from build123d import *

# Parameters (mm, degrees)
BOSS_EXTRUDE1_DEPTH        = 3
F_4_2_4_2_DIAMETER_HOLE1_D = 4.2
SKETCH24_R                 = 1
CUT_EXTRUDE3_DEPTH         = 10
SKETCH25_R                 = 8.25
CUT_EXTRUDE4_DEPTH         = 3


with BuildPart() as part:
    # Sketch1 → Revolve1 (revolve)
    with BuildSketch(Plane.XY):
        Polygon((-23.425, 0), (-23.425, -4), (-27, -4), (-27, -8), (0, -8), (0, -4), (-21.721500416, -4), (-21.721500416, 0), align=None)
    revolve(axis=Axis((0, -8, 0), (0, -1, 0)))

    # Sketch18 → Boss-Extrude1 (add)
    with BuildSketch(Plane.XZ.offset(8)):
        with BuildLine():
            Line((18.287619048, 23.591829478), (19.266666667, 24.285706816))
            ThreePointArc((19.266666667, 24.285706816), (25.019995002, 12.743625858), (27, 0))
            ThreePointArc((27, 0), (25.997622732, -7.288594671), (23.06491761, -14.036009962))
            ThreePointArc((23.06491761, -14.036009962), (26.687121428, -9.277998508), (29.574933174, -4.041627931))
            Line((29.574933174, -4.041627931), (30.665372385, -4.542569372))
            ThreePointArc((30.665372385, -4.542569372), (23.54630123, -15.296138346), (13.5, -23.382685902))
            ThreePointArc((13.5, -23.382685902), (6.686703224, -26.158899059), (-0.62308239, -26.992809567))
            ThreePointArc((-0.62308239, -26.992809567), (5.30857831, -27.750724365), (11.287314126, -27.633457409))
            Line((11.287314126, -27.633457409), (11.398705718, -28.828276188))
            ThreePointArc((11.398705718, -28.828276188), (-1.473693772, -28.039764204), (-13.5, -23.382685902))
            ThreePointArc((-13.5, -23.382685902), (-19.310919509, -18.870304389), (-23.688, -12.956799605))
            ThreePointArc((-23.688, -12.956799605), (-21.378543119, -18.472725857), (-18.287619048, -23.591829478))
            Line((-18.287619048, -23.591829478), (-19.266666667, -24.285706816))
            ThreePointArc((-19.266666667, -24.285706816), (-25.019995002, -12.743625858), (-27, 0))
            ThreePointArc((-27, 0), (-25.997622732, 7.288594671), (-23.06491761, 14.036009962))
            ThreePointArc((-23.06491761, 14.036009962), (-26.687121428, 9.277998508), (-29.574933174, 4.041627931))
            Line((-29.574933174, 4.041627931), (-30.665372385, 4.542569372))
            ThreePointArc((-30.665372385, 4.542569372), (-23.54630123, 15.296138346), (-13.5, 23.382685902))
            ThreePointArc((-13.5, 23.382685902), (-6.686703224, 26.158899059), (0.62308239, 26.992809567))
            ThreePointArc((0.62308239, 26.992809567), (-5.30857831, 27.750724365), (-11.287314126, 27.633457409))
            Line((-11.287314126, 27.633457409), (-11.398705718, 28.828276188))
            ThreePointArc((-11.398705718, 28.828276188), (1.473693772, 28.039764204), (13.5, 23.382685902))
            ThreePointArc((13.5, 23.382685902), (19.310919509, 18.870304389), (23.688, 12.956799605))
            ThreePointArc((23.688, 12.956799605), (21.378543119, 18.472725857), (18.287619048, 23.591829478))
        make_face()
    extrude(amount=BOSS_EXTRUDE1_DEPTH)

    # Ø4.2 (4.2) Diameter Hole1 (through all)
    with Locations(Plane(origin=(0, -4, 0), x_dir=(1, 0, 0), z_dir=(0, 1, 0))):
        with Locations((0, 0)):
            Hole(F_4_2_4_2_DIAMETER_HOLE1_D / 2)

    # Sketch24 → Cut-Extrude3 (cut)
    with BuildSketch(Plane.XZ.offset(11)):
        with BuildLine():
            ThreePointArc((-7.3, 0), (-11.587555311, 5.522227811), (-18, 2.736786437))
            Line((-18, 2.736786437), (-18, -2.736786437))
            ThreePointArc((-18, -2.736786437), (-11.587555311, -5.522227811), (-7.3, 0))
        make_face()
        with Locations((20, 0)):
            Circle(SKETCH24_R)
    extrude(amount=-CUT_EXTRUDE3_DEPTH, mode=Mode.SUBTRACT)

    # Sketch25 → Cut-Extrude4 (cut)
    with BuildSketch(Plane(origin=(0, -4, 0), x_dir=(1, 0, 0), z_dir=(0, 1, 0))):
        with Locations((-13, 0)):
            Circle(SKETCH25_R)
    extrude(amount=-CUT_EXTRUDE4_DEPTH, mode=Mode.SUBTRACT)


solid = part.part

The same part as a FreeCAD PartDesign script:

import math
import FreeCAD as App
import Part
import Sketcher
from FreeCAD import Vector


def add_polygon(sketch, points):
    """Adds a closed chain of lines whose ends are joined by coincident constraints."""
    first, n = sketch.GeometryCount, len(points)
    for a, b in zip(points, points[1:] + points[:1]):
        sketch.addGeometry(Part.LineSegment(App.Vector(*a, 0), App.Vector(*b, 0)), False)
    for i in range(n):
        sketch.addConstraint(Sketcher.Constraint("Coincident", first + i, 2, first + (i + 1) % n, 1))

doc = App.newDocument("Part")
body = doc.addObject("PartDesign::Body", "Body")

# Sketch on XY plane
sketch1 = body.newObject("Sketcher::SketchObject", "Sketch")
sketch1.AttachmentSupport = (doc.getObject("XY_Plane"), [""])
sketch1.MapMode = "FlatFace"
add_polygon(sketch1, [(-23.4, 0), (-23.4, -4), (-27, -4), (-27, -8), (0, -8), (0, -4), (-21.7, -4), (-21.7, 0)])  # lines 0-7
sketch1.addConstraint(Sketcher.Constraint("Vertical", 0))
sketch1.addConstraint(Sketcher.Constraint("Horizontal", 1))
sketch1.addConstraint(Sketcher.Constraint("Vertical", 2))
sketch1.addConstraint(Sketcher.Constraint("Horizontal", 3))
sketch1.addConstraint(Sketcher.Constraint("Vertical", 4))
sketch1.addConstraint(Sketcher.Constraint("Horizontal", 5))
sketch1.addConstraint(Sketcher.Constraint("Vertical", 6))
sketch1.addConstraint(Sketcher.Constraint("Horizontal", 7))
sketch1.addConstraint(Sketcher.Constraint("PointOnObject", 3, 2, -2))
sketch1.addConstraint(Sketcher.Constraint("PointOnObject", 6, 2, -1))
sketch1.addConstraint(Sketcher.Constraint("Horizontal", 1, 2, 4, 2))
sketch1.addConstraint(Sketcher.Constraint("Equal", 0, 2))
sketch1.addConstraint(Sketcher.Constraint("DistanceX", 3, 1, 3, 2, 27.0))
sketch1.addConstraint(Sketcher.Constraint("DistanceY", 0, 2, 0, 1, 4.0))
sketch1.addConstraint(Sketcher.Constraint("DistanceX", 1, 2, 1, 1, 3.575))
sketch1.addConstraint(Sketcher.Constraint("DistanceX", 5, 2, 5, 1, 21.7215))
revolution = body.newObject("PartDesign::Revolution", "Revolution")
revolution.Profile = sketch1
revolution.ReferenceAxis = (sketch1, ["V_Axis"])
revolution.Angle = 360

# Sketch on XZ plane
sketch2 = body.newObject("Sketcher::SketchObject", "Sketch001")
sketch2.AttachmentSupport = (doc.getObject("XZ_Plane"), [""])
sketch2.MapMode = "FlatFace"
sketch2.AttachmentOffset = App.Placement(Vector(0, 0, 8), App.Rotation())
sketch2.addGeometry(Part.LineSegment(Vector(19.3, 24.3, 0), Vector(18.3, 23.6, 0)), False)
sketch2.addGeometry(Part.ArcOfCircle(Part.Circle(Vector(-15, 0, 0), Vector(0, 0, 1), 40.8), math.radians(18.52), math.radians(35.33)), False)
sketch2.addGeometry(Part.ArcOfCircle(Part.Circle(Vector(0, 0, 0), Vector(0, 0, 1), 27), math.radians(29), math.radians(60)), False)
sketch2.addGeometry(Part.ArcOfCircle(Part.Circle(Vector(-7.5, -13, 0), Vector(0, 0, 1), 42), math.radians(60), math.radians(95)), False)
sketch2.addGeometry(Part.LineSegment(Vector(-11.4, 28.8, 0), Vector(-11.3, 27.6, 0)), False)
sketch2.addGeometry(Part.ArcOfCircle(Part.Circle(Vector(-7.5, -13, 0), Vector(0, 0, 1), 40.8), math.radians(78.52), math.radians(95.33)), False)
sketch2.addGeometry(Part.ArcOfCircle(Part.Circle(Vector(0, 0, 0), Vector(0, 0, 1), 27), math.radians(89), math.radians(120)), False)
sketch2.addGeometry(Part.ArcOfCircle(Part.Circle(Vector(7.5, -13, 0), Vector(0, 0, 1), 42), math.radians(120), math.radians(155)), False)
sketch2.addGeometry(Part.LineSegment(Vector(-30.7, 4.5, 0), Vector(-29.6, 4, 0)), False)
sketch2.addGeometry(Part.ArcOfCircle(Part.Circle(Vector(7.5, -13, 0), Vector(0, 0, 1), 40.8), math.radians(138.52), math.radians(155.33)), False)
sketch2.addGeometry(Part.ArcOfCircle(Part.Circle(Vector(0, 0, 0), Vector(0, 0, 1), 27), math.radians(149), math.radians(180)), False)
sketch2.addGeometry(Part.ArcOfCircle(Part.Circle(Vector(15, 0, 0), Vector(0, 0, 1), 42), math.radians(-180), math.radians(-145)), False)
sketch2.addGeometry(Part.LineSegment(Vector(-19.3, -24.3, 0), Vector(-18.3, -23.6, 0)), False)
sketch2.addGeometry(Part.ArcOfCircle(Part.Circle(Vector(15, 0, 0), Vector(0, 0, 1), 40.8), math.radians(-161.48), math.radians(-144.67)), False)
sketch2.addGeometry(Part.ArcOfCircle(Part.Circle(Vector(0, 0, 0), Vector(0, 0, 1), 27), math.radians(-151), math.radians(-120)), False)
sketch2.addGeometry(Part.ArcOfCircle(Part.Circle(Vector(7.5, 13, 0), Vector(0, 0, 1), 42), math.radians(-120), math.radians(-85)), False)
sketch2.addGeometry(Part.LineSegment(Vector(11.4, -28.8, 0), Vector(11.3, -27.6, 0)), False)
sketch2.addGeometry(Part.ArcOfCircle(Part.Circle(Vector(7.5, 13, 0), Vector(0, 0, 1), 40.8), math.radians(-101.48), math.radians(-84.67)), False)
sketch2.addGeometry(Part.ArcOfCircle(Part.Circle(Vector(0, 0, 0), Vector(0, 0, 1), 27), math.radians(-91), math.radians(-60)), False)
sketch2.addGeometry(Part.ArcOfCircle(Part.Circle(Vector(-7.5, 13, 0), Vector(0, 0, 1), 42), math.radians(-60), math.radians(-25)), False)
sketch2.addGeometry(Part.LineSegment(Vector(30.7, -4.5, 0), Vector(29.6, -4, 0)), False)
sketch2.addGeometry(Part.ArcOfCircle(Part.Circle(Vector(-7.5, 13, 0), Vector(0, 0, 1), 40.8), math.radians(-41.48), math.radians(-24.67)), False)
sketch2.addGeometry(Part.ArcOfCircle(Part.Circle(Vector(0, 0, 0), Vector(0, 0, 1), 27), math.radians(-31), math.radians(0)), False)
sketch2.addGeometry(Part.ArcOfCircle(Part.Circle(Vector(-15, 0, 0), Vector(0, 0, 1), 42), math.radians(0), math.radians(35)), False)
sketch2.addConstraint(Sketcher.Constraint("Coincident", 0, 2, 1, 2))
sketch2.addConstraint(Sketcher.Constraint("Coincident", 1, 1, 2, 1))
sketch2.addConstraint(Sketcher.Constraint("Tangent", 2, 2, 3, 1))
sketch2.addConstraint(Sketcher.Constraint("Coincident", 3, 2, 4, 1))
sketch2.addConstraint(Sketcher.Constraint("Coincident", 4, 2, 5, 2))
sketch2.addConstraint(Sketcher.Constraint("Coincident", 5, 1, 6, 1))
sketch2.addConstraint(Sketcher.Constraint("Tangent", 6, 2, 7, 1))
sketch2.addConstraint(Sketcher.Constraint("Coincident", 7, 2, 8, 1))
sketch2.addConstraint(Sketcher.Constraint("Coincident", 8, 2, 9, 2))
sketch2.addConstraint(Sketcher.Constraint("Coincident", 9, 1, 10, 1))
sketch2.addConstraint(Sketcher.Constraint("Tangent", 10, 2, 11, 1))
sketch2.addConstraint(Sketcher.Constraint("Coincident", 11, 2, 12, 1))
sketch2.addConstraint(Sketcher.Constraint("Coincident", 12, 2, 13, 2))
sketch2.addConstraint(Sketcher.Constraint("Coincident", 13, 1, 14, 1))
sketch2.addConstraint(Sketcher.Constraint("Tangent", 14, 2, 15, 1))
sketch2.addConstraint(Sketcher.Constraint("Coincident", 15, 2, 16, 1))
sketch2.addConstraint(Sketcher.Constraint("Coincident", 16, 2, 17, 2))
sketch2.addConstraint(Sketcher.Constraint("Coincident", 17, 1, 18, 1))
sketch2.addConstraint(Sketcher.Constraint("Tangent", 18, 2, 19, 1))
sketch2.addConstraint(Sketcher.Constraint("Coincident", 19, 2, 20, 1))
sketch2.addConstraint(Sketcher.Constraint("Coincident", 20, 2, 21, 2))
sketch2.addConstraint(Sketcher.Constraint("Coincident", 21, 1, 22, 1))
sketch2.addConstraint(Sketcher.Constraint("Tangent", 22, 2, 23, 1))
sketch2.addConstraint(Sketcher.Constraint("Coincident", 23, 2, 0, 1))
sketch2.addConstraint(Sketcher.Constraint("Coincident", 2, 3, -1, 1))
sketch2.addConstraint(Sketcher.Constraint("Coincident", 6, 3, -1, 1))
sketch2.addConstraint(Sketcher.Constraint("Coincident", 10, 3, -1, 1))
sketch2.addConstraint(Sketcher.Constraint("Coincident", 14, 3, -1, 1))
sketch2.addConstraint(Sketcher.Constraint("Coincident", 18, 3, -1, 1))
sketch2.addConstraint(Sketcher.Constraint("Coincident", 22, 3, -1, 1))
sketch2.addConstraint(Sketcher.Constraint("Coincident", 5, 3, 3, 3))
sketch2.addConstraint(Sketcher.Constraint("Coincident", 9, 3, 7, 3))
sketch2.addConstraint(Sketcher.Constraint("Coincident", 13, 3, 11, 3))
sketch2.addConstraint(Sketcher.Constraint("Coincident", 17, 3, 15, 3))
sketch2.addConstraint(Sketcher.Constraint("Coincident", 21, 3, 19, 3))
sketch2.addConstraint(Sketcher.Constraint("Coincident", 23, 3, 1, 3))
sketch2.addConstraint(Sketcher.Constraint("Equal", 1, 5))
sketch2.addConstraint(Sketcher.Constraint("Equal", 2, 6))
sketch2.addConstraint(Sketcher.Constraint("Equal", 3, 7))
sketch2.addConstraint(Sketcher.Constraint("Equal", 5, 9))
sketch2.addConstraint(Sketcher.Constraint("Equal", 6, 10))
sketch2.addConstraint(Sketcher.Constraint("Equal", 7, 11))
sketch2.addConstraint(Sketcher.Constraint("Equal", 9, 13))
sketch2.addConstraint(Sketcher.Constraint("Equal", 10, 14))
sketch2.addConstraint(Sketcher.Constraint("Equal", 11, 15))
sketch2.addConstraint(Sketcher.Constraint("Equal", 13, 17))
sketch2.addConstraint(Sketcher.Constraint("Equal", 14, 18))
sketch2.addConstraint(Sketcher.Constraint("Equal", 15, 19))
sketch2.addConstraint(Sketcher.Constraint("Equal", 17, 21))
sketch2.addConstraint(Sketcher.Constraint("Equal", 18, 22))
sketch2.addConstraint(Sketcher.Constraint("Equal", 19, 23))
sketch2.addConstraint(Sketcher.Constraint("Symmetric", 0, 2, 12, 2, -1, 1))
sketch2.addConstraint(Sketcher.Constraint("Symmetric", 3, 2, 15, 2, -1, 1))
sketch2.addConstraint(Sketcher.Constraint("Symmetric", 7, 2, 19, 2, -1, 1))
sketch2.addConstraint(Sketcher.Constraint("PointOnObject", 1, 3, -1))
sketch2.addConstraint(Sketcher.Constraint("Parallel", 0, 12))
sketch2.addConstraint(Sketcher.Constraint("Parallel", 4, 16))
sketch2.addConstraint(Sketcher.Constraint("Parallel", 8, 20))
sketch2.addConstraint(Sketcher.Constraint("Horizontal", 5, 3, 7, 3))
sketch2.addConstraint(Sketcher.Constraint("Radius", 2, 27.0))
sketch2.addConstraint(Sketcher.Constraint("Radius", 3, 42.0))
sketch2.addConstraint(Sketcher.Constraint("Radius", 1, 40.8))
sketch2.addConstraint(Sketcher.Constraint("DistanceX", 5, 3, 7, 3, 15.0))
sketch2.addConstraint(Sketcher.Constraint("DistanceX", -1, 1, 0, 2, 18.287619))
sketch2.addConstraint(Sketcher.Constraint("DistanceY", -1, 1, 7, 2, 4.542569))
sketch2.addConstraint(Sketcher.Constraint("DistanceY", 2, 2, 3, 2, 5.44559))
sketch2.addConstraint(Sketcher.Constraint("DistanceX", 3, 2, 4, 2, 0.111392))
sketch2.addConstraint(Sketcher.Constraint("DistanceX", 7, 2, 8, 2, 1.090439))
sketch2.addConstraint(Sketcher.Constraint("DistanceY", 11, 2, 14, 2, 0.903021))
pad1 = body.newObject("PartDesign::Pad", "Pad")
pad1.Profile = sketch2
pad1.Length = 3

# Sketch on XZ plane
sketch3 = body.newObject("Sketcher::SketchObject", "Sketch002")
sketch3.AttachmentSupport = (doc.getObject("XZ_Plane"), [""])
sketch3.MapMode = "FlatFace"
sketch3.AttachmentOffset = App.Placement(Vector(0, 0, 4), App.Rotation())
sketch3.addGeometry(Part.Circle(Vector(0, 0, 0), Vector(0, 0, 1), 2.1), False)
sketch3.addConstraint(Sketcher.Constraint("Coincident", 0, 3, -1, 1))
sketch3.addConstraint(Sketcher.Constraint("Diameter", 0, 4.2))
doc.recompute()
hole = body.newObject("PartDesign::Hole", "Hole")
hole.Profile = sketch3
hole.ThreadType = "None"
hole.Diameter = 4.2
hole.DepthType = "ThroughAll"
hole.Reversed = True

# Sketch on XZ plane
sketch4 = body.newObject("Sketcher::SketchObject", "Sketch003")
sketch4.AttachmentSupport = (doc.getObject("XZ_Plane"), [""])
sketch4.MapMode = "FlatFace"
sketch4.AttachmentOffset = App.Placement(Vector(0, 0, 11), App.Rotation())
sketch4.addGeometry(Part.ArcOfCircle(Part.Circle(Vector(-13, 0, 0), Vector(0, 0, 1), 5.7), math.radians(0), math.radians(151)), False)
sketch4.addGeometry(Part.LineSegment(Vector(-18, 2.7, 0), Vector(-18, -2.7, 0)), False)
sketch4.addGeometry(Part.ArcOfCircle(Part.Circle(Vector(-13, 0, 0), Vector(0, 0, 1), 5.7), math.radians(-151), math.radians(0)), False)
sketch4.addGeometry(Part.Circle(Vector(20, 0, 0), Vector(0, 0, 1), 1), False)
sketch4.addConstraint(Sketcher.Constraint("Coincident", 0, 2, 1, 1))
sketch4.addConstraint(Sketcher.Constraint("Coincident", 1, 2, 2, 1))
sketch4.addConstraint(Sketcher.Constraint("Tangent", 2, 2, 0, 1))
sketch4.addConstraint(Sketcher.Constraint("Vertical", 1))
sketch4.addConstraint(Sketcher.Constraint("Equal", 0, 2))
sketch4.addConstraint(Sketcher.Constraint("PointOnObject", 0, 3, -1))
sketch4.addConstraint(Sketcher.Constraint("PointOnObject", 3, 3, -1))
sketch4.addConstraint(Sketcher.Constraint("PointOnObject", 2, 2, -1))
sketch4.addConstraint(Sketcher.Constraint("Diameter", 3, 2.0))
sketch4.addConstraint(Sketcher.Constraint("Radius", 0, 5.7))
sketch4.addConstraint(Sketcher.Constraint("DistanceX", 0, 3, -1, 1, 13.0))
sketch4.addConstraint(Sketcher.Constraint("DistanceX", -1, 1, 3, 3, 20.0))
sketch4.addConstraint(Sketcher.Constraint("DistanceX", 0, 2, -1, 1, 18.0))
pocket1 = body.newObject("PartDesign::Pocket", "Pocket")
pocket1.Profile = sketch4
pocket1.Length = 10

# Sketch on XZ plane
sketch5 = body.newObject("Sketcher::SketchObject", "Sketch004")
sketch5.AttachmentSupport = (doc.getObject("XZ_Plane"), [""])
sketch5.MapMode = "FlatFace"
sketch5.AttachmentOffset = App.Placement(Vector(0, 0, 4), App.Rotation())
sketch5.addGeometry(Part.Circle(Vector(-13, 0, 0), Vector(0, 0, 1), 8), False)
sketch5.addConstraint(Sketcher.Constraint("PointOnObject", 0, 3, -1))
sketch5.addConstraint(Sketcher.Constraint("Diameter", 0, 16.5))
sketch5.addConstraint(Sketcher.Constraint("DistanceX", 0, 3, -1, 1, 13.0))
pocket2 = body.newObject("PartDesign::Pocket", "Pocket001")
pocket2.Profile = sketch5
pocket2.Length = 3
pocket2.Reversed = True

doc.recompute()
